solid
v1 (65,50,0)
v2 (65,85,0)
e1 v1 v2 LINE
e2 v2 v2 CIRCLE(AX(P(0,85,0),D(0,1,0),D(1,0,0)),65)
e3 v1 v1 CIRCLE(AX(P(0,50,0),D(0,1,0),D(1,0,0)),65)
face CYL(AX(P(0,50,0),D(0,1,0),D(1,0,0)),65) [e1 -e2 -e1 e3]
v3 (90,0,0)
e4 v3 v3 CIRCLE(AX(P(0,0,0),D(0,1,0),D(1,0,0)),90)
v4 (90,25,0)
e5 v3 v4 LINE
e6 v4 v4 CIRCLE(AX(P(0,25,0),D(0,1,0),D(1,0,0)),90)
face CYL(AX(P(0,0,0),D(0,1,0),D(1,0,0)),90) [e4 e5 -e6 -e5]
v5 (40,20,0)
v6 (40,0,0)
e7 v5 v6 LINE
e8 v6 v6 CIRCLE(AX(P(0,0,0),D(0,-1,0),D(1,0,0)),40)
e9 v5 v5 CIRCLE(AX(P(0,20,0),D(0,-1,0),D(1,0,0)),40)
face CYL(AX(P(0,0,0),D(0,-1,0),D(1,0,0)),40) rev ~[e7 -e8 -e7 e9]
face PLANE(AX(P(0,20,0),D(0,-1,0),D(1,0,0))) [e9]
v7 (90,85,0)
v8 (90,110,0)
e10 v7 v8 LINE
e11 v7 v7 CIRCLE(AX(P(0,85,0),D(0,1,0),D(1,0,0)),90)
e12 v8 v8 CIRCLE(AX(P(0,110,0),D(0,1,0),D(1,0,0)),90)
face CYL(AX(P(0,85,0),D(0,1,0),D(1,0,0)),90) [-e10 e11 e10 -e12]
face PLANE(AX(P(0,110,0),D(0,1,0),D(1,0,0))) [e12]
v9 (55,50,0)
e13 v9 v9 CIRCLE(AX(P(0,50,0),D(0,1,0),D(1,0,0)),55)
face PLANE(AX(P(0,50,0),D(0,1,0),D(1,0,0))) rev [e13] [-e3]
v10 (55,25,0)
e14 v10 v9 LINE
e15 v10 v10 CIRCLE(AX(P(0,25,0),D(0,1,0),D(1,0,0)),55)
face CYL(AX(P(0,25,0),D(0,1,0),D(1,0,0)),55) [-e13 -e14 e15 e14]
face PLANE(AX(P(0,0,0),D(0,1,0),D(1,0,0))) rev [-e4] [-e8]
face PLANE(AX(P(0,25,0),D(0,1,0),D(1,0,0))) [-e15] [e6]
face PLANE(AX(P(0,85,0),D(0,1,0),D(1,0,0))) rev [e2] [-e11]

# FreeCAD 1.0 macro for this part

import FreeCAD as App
import Part
import Sketcher

V = App.Vector

doc = App.newDocument("Part")
body = doc.addObject("PartDesign::Body", "Body")

# Sketch on XY plane
sketch1 = body.newObject("Sketcher::SketchObject", "Sketch")
sketch1.AttachmentSupport = (doc.getObject("XY_Plane"), [""])
sketch1.MapMode = "FlatFace"
sketch1.addGeometry([
    Part.LineSegment(V(0, 110, 0), V(0, 0, 0)),  # 0
    Part.LineSegment(V(0, 0, 0), V(90, 0, 0)),  # 1
    Part.LineSegment(V(90, 0, 0), V(90, 25, 0)),  # 2
    Part.LineSegment(V(90, 25, 0), V(55, 25, 0)),  # 3
    Part.LineSegment(V(55, 25, 0), V(55, 50, 0)),  # 4
    Part.LineSegment(V(55, 50, 0), V(65, 50, 0)),  # 5
    Part.LineSegment(V(65, 50, 0), V(65, 85, 0)),  # 6
    Part.LineSegment(V(65, 85, 0), V(90, 85, 0)),  # 7
    Part.LineSegment(V(90, 85, 0), V(90, 110, 0)),  # 8
    Part.LineSegment(V(90, 110, 0), V(0, 110, 0)),  # 9
], False)
sketch1.addConstraint([
    Sketcher.Constraint("Coincident", 0, 2, 1, 1),
    Sketcher.Constraint("Coincident", 1, 2, 2, 1),
    Sketcher.Constraint("Coincident", 2, 2, 3, 1),
    Sketcher.Constraint("Coincident", 3, 2, 4, 1),
    Sketcher.Constraint("Coincident", 4, 2, 5, 1),
    Sketcher.Constraint("Coincident", 5, 2, 6, 1),
    Sketcher.Constraint("Coincident", 6, 2, 7, 1),
    Sketcher.Constraint("Coincident", 7, 2, 8, 1),
    Sketcher.Constraint("Coincident", 8, 2, 9, 1),
    Sketcher.Constraint("Coincident", 9, 2, 0, 1),
    Sketcher.Constraint("Vertical", 0),
    Sketcher.Constraint("Horizontal", 1),
    Sketcher.Constraint("Vertical", 2),
    Sketcher.Constraint("Horizontal", 3),
    Sketcher.Constraint("Vertical", 4),
    Sketcher.Constraint("Horizontal", 5),
    Sketcher.Constraint("Vertical", 6),
    Sketcher.Constraint("Horizontal", 7),
    Sketcher.Constraint("Vertical", 8),
    Sketcher.Constraint("Horizontal", 9),
    Sketcher.Constraint("Coincident", 0, 2, -1, 1),
    Sketcher.Constraint("Vertical", 2, 2, 7, 2),
    Sketcher.Constraint("Equal", 7, 2),
    Sketcher.Constraint("Equal", 2, 4),
    Sketcher.Constraint("Equal", 3, 6),
    Sketcher.Constraint("Equal", 4, 8),
    Sketcher.Constraint("DistanceX", 1, 1, 1, 2, 90.0),
    Sketcher.Constraint("DistanceX", 3, 2, 3, 1, 35.0),
    Sketcher.Constraint("DistanceX", 5, 1, 5, 2, 10.0),
])
revolution = body.newObject("PartDesign::Revolution", "Revolution")
revolution.Profile = sketch1
revolution.ReferenceAxis = (sketch1, ["V_Axis"])
revolution.Angle = 360

# Sketch on XZ plane
sketch2 = body.newObject("Sketcher::SketchObject", "Sketch001")
sketch2.AttachmentSupport = (doc.getObject("XZ_Plane"), [""])
sketch2.MapMode = "FlatFace"
sketch2.addGeometry(Part.Circle(V(0, 0, 0), V(0, 0, 1), 40), False)
sketch2.addConstraint([
    Sketcher.Constraint("Coincident", 0, 3, -1, 1),
    Sketcher.Constraint("Diameter", 0, 80.0),
])
pocket1 = body.newObject("PartDesign::Pocket", "Pocket")
pocket1.Profile = sketch2
pocket1.Length = 40
pocket1.Midplane = True

doc.recompute()
